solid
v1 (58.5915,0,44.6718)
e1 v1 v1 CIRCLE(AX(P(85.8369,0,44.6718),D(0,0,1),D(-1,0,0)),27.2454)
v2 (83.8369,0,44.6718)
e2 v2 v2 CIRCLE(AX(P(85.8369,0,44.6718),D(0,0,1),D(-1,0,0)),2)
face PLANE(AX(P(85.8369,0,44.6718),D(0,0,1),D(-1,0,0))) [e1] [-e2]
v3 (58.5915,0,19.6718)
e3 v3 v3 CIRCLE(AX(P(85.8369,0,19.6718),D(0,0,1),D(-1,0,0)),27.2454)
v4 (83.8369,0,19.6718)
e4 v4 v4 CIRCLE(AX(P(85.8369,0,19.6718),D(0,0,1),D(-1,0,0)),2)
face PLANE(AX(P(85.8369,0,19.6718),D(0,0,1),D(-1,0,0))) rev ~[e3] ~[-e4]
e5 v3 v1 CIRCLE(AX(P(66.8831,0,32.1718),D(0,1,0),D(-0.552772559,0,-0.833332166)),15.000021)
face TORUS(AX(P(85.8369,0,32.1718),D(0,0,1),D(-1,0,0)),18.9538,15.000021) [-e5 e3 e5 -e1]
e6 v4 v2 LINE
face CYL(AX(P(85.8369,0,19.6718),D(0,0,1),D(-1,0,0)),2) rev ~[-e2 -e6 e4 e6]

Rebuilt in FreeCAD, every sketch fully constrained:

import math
import FreeCAD as App
import Part
import Sketcher

V = App.Vector

doc = App.newDocument("Part")
body = doc.addObject("PartDesign::Body", "Body")

sketch1 = body.newObject("Sketcher::SketchObject", "Sketch")
sketch1.AttachmentSupport = (doc.getObject("XZ_Plane"), [""])
sketch1.MapMode = "FlatFace"
sketch1.addGeometry(Part.LineSegment(V(84, 20, 0), V(59, 20, 0)), False)
sketch1.addGeometry(Part.ArcOfCircle(Part.Circle(V(67, 32, 0), V(0, 0, 1), 15), math.radians(124), math.radians(236)), False)
sketch1.addGeometry(Part.LineSegment(V(59, 45, 0), V(84, 45, 0)), False)
sketch1.addGeometry(Part.LineSegment(V(84, 45, 0), V(84, 20, 0)), False)
sketch1.addGeometry(Part.LineSegment(V(86, 20, 0), V(86, 45, 0)), True)
sketch1.addConstraint(Sketcher.Constraint("Coincident", 0, 2, 1, 2))
sketch1.addConstraint(Sketcher.Constraint("Coincident", 1, 1, 2, 1))
sketch1.addConstraint(Sketcher.Constraint("Coincident", 2, 2, 3, 1))
sketch1.addConstraint(Sketcher.Constraint("Coincident", 3, 2, 0, 1))
sketch1.addConstraint(Sketcher.Constraint("Horizontal", 0))
sketch1.addConstraint(Sketcher.Constraint("Horizontal", 2))
sketch1.addConstraint(Sketcher.Constraint("Vertical", 3))
sketch1.addConstraint(Sketcher.Constraint("Vertical", 4))
sketch1.addConstraint(Sketcher.Constraint("Horizontal", 3, 2, 4, 1))
sketch1.addConstraint(Sketcher.Constraint("Horizontal", 2, 2, 4, 2))
sketch1.addConstraint(Sketcher.Constraint("Vertical", 0, 2, 1, 1))
sketch1.addConstraint(Sketcher.Constraint("DistanceY", 3, 2, 3, 1, 25.0))
sketch1.addConstraint(Sketcher.Constraint("Radius", 1, 15.0))
sketch1.addConstraint(Sketcher.Constraint("DistanceX", 3, 2, 4, 1, 2.0))
sketch1.addConstraint(Sketcher.Constraint("DistanceX", 0, 2, 4, 1, 27.2454))
sketch1.addConstraint(Sketcher.Constraint("DistanceX", -1, 1, 1, 3, 66.883))
sketch1.addConstraint(Sketcher.Constraint("DistanceY", -1, 1, 1, 3, 32.1718))
revolution = body.newObject("PartDesign::Revolution", "Revolution")
revolution.Profile = sketch1
revolution.ReferenceAxis = (sketch1, ["Axis0"])
revolution.Angle = 360

doc.recompute()
